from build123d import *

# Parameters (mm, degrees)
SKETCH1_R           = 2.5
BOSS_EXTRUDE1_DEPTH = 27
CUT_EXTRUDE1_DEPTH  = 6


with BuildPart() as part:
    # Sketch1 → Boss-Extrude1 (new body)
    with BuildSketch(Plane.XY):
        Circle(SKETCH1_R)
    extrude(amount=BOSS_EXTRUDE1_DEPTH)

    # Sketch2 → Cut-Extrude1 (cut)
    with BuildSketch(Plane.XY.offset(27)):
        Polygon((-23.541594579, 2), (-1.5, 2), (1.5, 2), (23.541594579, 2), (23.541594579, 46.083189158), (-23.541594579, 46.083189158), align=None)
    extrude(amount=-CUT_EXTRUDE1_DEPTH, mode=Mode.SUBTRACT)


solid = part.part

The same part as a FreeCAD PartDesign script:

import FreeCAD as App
import Part
import Sketcher
from FreeCAD import Vector
Q = App.Units.Quantity


def add_polygon(sketch, points):
    """Adds a closed chain of lines whose ends are joined by coincident constraints."""
    first, n = sketch.GeometryCount, len(points)
    for a, b in zip(points, points[1:] + points[:1]):
        sketch.addGeometry(Part.LineSegment(App.Vector(*a, 0), App.Vector(*b, 0)), False)
    for i in range(n):
        sketch.addConstraint(Sketcher.Constraint("Coincident", first + i, 2, first + (i + 1) % n, 1))

doc = App.newDocument("Part")
body = doc.addObject("PartDesign::Body", "Body")

# Sketch on XY plane
sketch1 = body.newObject("Sketcher::SketchObject", "Sketch")
sketch1.AttachmentSupport = (doc.getObject("XY_Plane"), [""])
sketch1.MapMode = "FlatFace"
sketch1.addGeometry(Part.Circle(Vector(0, 0, 0), Vector(0, 0, 1), 2.5), False)
sketch1.addConstraint(Sketcher.Constraint("Coincident", 0, 3, -1, 1))
sketch1.addConstraint(Sketcher.Constraint("Diameter", 0, Q("5 mm")))
pad1 = body.newObject("PartDesign::Pad", "Pad")
pad1.Profile = sketch1
pad1.Length = 27

# Sketch on XY plane
sketch2 = body.newObject("Sketcher::SketchObject", "Sketch001")
sketch2.AttachmentSupport = (doc.getObject("XY_Plane"), [""])
sketch2.MapMode = "FlatFace"
sketch2.AttachmentOffset = App.Placement(Vector(0, 0, 27), App.Rotation())
add_polygon(sketch2, [(-23.541595, 2), (23.541595, 2), (23.541595, 46.083189), (-23.541595, 46.083189)])  # lines 0-3
sketch2.addConstraint(Sketcher.Constraint("Horizontal", 0))
sketch2.addConstraint(Sketcher.Constraint("Vertical", 1))
sketch2.addConstraint(Sketcher.Constraint("Horizontal", 2))
sketch2.addConstraint(Sketcher.Constraint("Vertical", 3))
sketch2.addConstraint(Sketcher.Constraint("DistanceY", -1, 1, 0, 2, Q("2 mm")))
sketch2.addConstraint(Sketcher.Constraint("DistanceX", 0, 1, 0, 2, Q("47.083189 mm")))
sketch2.addConstraint(Sketcher.Constraint("DistanceY", 1, 1, 1, 2, Q("44.083189 mm")))
sketch2.addConstraint(Sketcher.Constraint("DistanceX", -1, 1, 0, 2, Q("23.541595 mm")))
pocket1 = body.newObject("PartDesign::Pocket", "Pocket")
pocket1.Profile = sketch2
pocket1.Length = 6

doc.recompute()
